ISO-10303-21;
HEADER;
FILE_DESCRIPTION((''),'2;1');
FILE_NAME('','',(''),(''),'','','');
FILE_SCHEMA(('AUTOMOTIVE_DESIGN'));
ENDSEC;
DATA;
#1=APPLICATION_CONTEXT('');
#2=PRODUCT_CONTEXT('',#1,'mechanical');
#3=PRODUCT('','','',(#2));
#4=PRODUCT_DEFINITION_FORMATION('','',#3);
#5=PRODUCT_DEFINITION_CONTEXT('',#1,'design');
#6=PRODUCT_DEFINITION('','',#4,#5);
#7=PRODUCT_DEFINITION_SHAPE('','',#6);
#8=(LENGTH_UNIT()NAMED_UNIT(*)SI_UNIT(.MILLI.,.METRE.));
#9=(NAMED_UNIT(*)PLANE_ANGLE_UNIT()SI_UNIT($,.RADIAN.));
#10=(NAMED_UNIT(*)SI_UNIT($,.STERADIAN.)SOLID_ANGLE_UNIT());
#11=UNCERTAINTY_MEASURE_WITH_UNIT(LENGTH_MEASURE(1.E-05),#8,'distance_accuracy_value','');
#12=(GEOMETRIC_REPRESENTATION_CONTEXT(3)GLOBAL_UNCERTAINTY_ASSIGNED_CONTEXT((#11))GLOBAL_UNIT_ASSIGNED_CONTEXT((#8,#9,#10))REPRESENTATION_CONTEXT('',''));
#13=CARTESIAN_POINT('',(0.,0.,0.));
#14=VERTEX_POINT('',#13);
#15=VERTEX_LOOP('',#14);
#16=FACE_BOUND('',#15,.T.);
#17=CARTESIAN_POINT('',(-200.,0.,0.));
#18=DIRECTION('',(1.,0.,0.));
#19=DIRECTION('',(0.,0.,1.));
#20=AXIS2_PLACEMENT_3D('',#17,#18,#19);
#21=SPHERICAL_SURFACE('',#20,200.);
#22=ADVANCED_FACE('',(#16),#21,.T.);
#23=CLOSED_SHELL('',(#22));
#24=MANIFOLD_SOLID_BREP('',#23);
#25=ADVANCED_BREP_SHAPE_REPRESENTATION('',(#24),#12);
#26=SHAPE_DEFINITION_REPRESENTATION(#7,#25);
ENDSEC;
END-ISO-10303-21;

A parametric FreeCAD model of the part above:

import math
import FreeCAD as App
import Part
import Sketcher

V = App.Vector

doc = App.newDocument("Part")
body = doc.addObject("PartDesign::Body", "Body")

sketch1 = body.newObject("Sketcher::SketchObject", "Sketch")
sketch1.AttachmentSupport = (doc.getObject("XZ_Plane"), [""])
sketch1.MapMode = "FlatFace"
sketch1.addGeometry(Part.LineSegment(V(-400, 0, 0), V(0, 0, 0)), False)
sketch1.addGeometry(Part.ArcOfCircle(Part.Circle(V(-200, 0, 0), V(0, 0, 1), 200), math.radians(180), math.radians(360)), False)
sketch1.addConstraint(Sketcher.Constraint("Coincident", 0, 1, 1, 1))
sketch1.addConstraint(Sketcher.Constraint("Coincident", 1, 2, 0, 2))
sketch1.addConstraint(Sketcher.Constraint("Horizontal", 0))
sketch1.addConstraint(Sketcher.Constraint("Coincident", 1, 2, -1, 1))
sketch1.addConstraint(Sketcher.Constraint("PointOnObject", 1, 3, -1))
sketch1.addConstraint(Sketcher.Constraint("Radius", 1, 200.0))
revolution = body.newObject("PartDesign::Revolution", "Revolution")
revolution.Profile = sketch1
revolution.ReferenceAxis = (sketch1, ["H_Axis"])
revolution.Angle = 360

doc.recompute()
